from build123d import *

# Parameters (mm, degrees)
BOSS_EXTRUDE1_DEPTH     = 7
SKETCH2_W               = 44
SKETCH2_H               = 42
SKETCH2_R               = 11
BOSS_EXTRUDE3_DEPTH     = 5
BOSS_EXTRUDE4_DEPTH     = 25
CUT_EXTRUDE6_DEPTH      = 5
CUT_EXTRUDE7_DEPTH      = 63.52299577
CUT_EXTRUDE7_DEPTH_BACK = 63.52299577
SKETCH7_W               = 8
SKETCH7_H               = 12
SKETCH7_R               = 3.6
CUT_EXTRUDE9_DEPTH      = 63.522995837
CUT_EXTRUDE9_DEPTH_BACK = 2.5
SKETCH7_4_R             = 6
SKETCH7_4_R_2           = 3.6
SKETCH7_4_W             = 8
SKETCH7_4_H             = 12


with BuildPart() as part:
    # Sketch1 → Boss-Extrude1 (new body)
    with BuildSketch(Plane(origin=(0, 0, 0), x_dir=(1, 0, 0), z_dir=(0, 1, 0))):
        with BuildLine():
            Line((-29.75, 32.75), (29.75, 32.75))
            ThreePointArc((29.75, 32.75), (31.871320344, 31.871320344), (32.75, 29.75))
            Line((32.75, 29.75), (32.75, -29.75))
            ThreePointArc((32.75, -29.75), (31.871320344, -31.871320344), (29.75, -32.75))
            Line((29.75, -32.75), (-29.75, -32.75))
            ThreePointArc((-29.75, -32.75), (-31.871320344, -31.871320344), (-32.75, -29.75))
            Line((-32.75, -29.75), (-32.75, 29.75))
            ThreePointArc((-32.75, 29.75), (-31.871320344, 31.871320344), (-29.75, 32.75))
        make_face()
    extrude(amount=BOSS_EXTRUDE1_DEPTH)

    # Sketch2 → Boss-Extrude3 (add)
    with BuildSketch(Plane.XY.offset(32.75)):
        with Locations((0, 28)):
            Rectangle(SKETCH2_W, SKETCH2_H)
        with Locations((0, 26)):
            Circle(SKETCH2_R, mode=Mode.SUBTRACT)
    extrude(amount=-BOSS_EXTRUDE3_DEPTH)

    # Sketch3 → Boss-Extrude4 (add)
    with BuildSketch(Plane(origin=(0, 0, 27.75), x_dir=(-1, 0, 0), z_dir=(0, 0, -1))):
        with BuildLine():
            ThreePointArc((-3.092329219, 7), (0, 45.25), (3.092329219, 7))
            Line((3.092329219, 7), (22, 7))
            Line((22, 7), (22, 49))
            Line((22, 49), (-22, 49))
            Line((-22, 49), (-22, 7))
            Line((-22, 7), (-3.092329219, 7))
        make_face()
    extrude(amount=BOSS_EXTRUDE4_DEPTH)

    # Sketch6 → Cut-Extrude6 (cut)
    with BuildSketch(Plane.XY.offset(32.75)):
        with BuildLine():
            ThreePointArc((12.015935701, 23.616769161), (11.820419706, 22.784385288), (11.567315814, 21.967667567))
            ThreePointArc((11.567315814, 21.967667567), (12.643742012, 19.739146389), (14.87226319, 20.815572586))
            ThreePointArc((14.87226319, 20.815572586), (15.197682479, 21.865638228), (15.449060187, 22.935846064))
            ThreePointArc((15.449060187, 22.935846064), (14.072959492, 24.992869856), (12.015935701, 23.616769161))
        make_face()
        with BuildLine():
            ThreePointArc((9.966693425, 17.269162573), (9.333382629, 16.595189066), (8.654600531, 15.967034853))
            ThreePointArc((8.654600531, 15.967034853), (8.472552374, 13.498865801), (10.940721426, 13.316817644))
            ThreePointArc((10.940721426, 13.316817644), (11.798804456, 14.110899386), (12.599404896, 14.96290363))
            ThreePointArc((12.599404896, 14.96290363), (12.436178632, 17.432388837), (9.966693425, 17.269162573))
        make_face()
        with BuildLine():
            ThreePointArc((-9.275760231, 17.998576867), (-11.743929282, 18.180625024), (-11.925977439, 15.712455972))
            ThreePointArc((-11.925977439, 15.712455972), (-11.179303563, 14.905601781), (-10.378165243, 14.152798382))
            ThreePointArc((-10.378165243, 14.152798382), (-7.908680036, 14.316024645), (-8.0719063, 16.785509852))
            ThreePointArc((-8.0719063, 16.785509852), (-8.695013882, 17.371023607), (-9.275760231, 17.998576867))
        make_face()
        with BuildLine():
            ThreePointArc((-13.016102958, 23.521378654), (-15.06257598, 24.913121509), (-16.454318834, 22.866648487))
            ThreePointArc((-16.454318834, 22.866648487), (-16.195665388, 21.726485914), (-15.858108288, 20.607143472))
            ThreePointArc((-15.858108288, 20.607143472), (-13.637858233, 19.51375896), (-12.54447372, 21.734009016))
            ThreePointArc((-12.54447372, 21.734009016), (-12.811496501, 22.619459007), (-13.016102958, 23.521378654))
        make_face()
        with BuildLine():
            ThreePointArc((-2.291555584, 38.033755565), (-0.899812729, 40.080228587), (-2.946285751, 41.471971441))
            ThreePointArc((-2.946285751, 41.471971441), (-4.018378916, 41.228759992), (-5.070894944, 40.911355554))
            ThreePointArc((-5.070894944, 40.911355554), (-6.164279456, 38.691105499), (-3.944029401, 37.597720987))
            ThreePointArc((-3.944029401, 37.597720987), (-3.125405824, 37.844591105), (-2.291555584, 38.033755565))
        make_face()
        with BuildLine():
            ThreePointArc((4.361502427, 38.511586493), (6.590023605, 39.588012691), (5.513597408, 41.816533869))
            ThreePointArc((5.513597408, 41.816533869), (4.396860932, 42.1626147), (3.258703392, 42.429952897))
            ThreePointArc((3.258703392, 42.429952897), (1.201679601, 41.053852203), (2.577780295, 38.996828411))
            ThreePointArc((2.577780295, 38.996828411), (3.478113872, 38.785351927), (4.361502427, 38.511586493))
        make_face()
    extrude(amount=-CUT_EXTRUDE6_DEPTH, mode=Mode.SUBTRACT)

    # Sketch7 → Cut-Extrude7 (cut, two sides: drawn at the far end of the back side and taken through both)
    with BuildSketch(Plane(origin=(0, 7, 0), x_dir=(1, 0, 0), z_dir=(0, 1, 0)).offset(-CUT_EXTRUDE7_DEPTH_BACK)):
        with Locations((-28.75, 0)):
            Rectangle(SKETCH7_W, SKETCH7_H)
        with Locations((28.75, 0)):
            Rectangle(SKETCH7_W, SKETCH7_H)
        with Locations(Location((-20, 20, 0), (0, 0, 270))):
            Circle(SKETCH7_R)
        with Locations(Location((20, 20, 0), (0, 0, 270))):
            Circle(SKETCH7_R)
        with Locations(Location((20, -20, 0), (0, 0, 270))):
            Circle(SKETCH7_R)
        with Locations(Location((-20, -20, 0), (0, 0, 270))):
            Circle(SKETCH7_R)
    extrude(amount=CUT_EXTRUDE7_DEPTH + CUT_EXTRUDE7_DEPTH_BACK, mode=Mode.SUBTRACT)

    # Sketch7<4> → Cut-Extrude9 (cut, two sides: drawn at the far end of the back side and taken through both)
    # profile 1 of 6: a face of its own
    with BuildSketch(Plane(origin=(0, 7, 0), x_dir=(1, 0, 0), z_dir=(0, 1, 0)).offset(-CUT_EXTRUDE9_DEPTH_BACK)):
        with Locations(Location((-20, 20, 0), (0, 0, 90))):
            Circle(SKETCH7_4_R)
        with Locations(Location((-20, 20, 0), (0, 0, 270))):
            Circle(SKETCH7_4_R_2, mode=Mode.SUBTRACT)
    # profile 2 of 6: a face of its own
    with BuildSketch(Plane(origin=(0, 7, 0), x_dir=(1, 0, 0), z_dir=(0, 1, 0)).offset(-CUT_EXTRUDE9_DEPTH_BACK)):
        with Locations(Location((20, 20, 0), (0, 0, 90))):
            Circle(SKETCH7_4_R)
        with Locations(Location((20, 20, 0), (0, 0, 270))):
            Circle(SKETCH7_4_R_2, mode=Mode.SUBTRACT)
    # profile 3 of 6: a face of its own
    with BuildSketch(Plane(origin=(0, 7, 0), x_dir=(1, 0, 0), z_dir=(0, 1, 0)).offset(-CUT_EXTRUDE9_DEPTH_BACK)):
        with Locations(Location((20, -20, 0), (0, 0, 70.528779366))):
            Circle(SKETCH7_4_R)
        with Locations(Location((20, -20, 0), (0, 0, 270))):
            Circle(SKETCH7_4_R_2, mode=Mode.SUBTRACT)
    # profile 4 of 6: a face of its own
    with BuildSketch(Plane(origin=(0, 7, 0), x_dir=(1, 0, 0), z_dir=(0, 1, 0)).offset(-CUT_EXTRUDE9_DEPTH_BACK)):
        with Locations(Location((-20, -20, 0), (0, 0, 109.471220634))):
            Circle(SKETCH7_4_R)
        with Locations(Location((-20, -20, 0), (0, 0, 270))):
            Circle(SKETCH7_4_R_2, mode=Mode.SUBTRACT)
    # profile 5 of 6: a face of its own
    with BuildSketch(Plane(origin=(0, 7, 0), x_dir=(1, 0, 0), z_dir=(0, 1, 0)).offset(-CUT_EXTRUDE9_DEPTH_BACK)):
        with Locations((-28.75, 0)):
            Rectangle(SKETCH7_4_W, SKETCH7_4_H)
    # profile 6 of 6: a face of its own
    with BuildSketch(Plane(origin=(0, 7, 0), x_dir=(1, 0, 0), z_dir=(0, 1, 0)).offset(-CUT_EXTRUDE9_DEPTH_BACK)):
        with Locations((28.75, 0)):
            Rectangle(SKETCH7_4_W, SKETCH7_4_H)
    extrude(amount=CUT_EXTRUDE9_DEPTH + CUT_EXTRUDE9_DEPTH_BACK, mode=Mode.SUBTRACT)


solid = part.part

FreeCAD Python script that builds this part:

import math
import FreeCAD as App
import Part
import Sketcher
from FreeCAD import Vector
Q = App.Units.Quantity

doc = App.newDocument("Part")
params = doc.addObject("Spreadsheet::Sheet", "Params")
for row, (alias, value) in enumerate([
    ("sketch1_radius", "3 mm"),
    ("sketch1_width", "59.5 mm"),
    ("pad1_length", "7 mm"),
    ("sketch2_diameter", "22 mm"),
    ("sketch2_width", "44 mm"),
    ("sketch2_height", "42 mm"),
    ("pad2_length", "5 mm"),
    ("sketch3_width", "44 mm"),
    ("sketch3_height", "42 mm"),
    ("sketch3_radius", "19.25 mm"),
    ("pad3_length", "25 mm"),
    ("sketch4_radius", "12.25 mm"),
    ("sketch4_radius2", "1.75 mm"),
    ("sketch4_radius3", "13.25 mm"),
    ("pocket1_length", "5 mm"),
    ("sketch5_diameter", "7.2 mm"),
    ("sketch5_width", "8 mm"),
    ("sketch5_height", "12 mm"),
    ("sketch6_diameter", "12 mm"),
    ("sketch6_diameter2", "7.2 mm"),
    ("sketch6_width", "8 mm"),
    ("sketch6_height", "12 mm"),
    ("pocket3_length", "63.522996 mm"),
    ("pocket3_length2", "2.5 mm"),
], start=1):
    params.set(f"A{row}", alias)
    params.set(f"B{row}", "=" + value)
    params.setAlias(f"B{row}", alias)

body = doc.addObject("PartDesign::Body", "Body")

# Sketch on XZ plane
sketch1 = body.newObject("Sketcher::SketchObject", "Sketch")
sketch1.AttachmentSupport = (doc.getObject("XZ_Plane"), [""])
sketch1.MapMode = "FlatFace"
sketch1.addGeometry([
    Part.LineSegment(Vector(29.75, -32.75, 0), Vector(-29.75, -32.75, 0)),  # 0
    Part.ArcOfCircle(Part.Circle(Vector(-29.75, -29.75, 0), Vector(0, 0, 1), 3), math.radians(180), math.radians(270)),  # 1
    Part.LineSegment(Vector(-32.75, -29.75, 0), Vector(-32.75, 29.75, 0)),  # 2
    Part.ArcOfCircle(Part.Circle(Vector(-29.75, 29.75, 0), Vector(0, 0, 1), 3), math.radians(90), math.radians(180)),  # 3
    Part.LineSegment(Vector(-29.75, 32.75, 0), Vector(29.75, 32.75, 0)),  # 4
    Part.ArcOfCircle(Part.Circle(Vector(29.75, 29.75, 0), Vector(0, 0, 1), 3), math.radians(0), math.radians(90)),  # 5
    Part.LineSegment(Vector(32.75, 29.75, 0), Vector(32.75, -29.75, 0)),  # 6
    Part.ArcOfCircle(Part.Circle(Vector(29.75, -29.75, 0), Vector(0, 0, 1), 3), math.radians(-90), math.radians(0)),  # 7
], False)
sketch1.addConstraint([
    Sketcher.Constraint("Tangent", 0, 2, 1, 2),
    Sketcher.Constraint("Tangent", 1, 1, 2, 1),
    Sketcher.Constraint("Tangent", 2, 2, 3, 2),
    Sketcher.Constraint("Tangent", 3, 1, 4, 1),
    Sketcher.Constraint("Tangent", 4, 2, 5, 2),
    Sketcher.Constraint("Tangent", 5, 1, 6, 1),
    Sketcher.Constraint("Tangent", 6, 2, 7, 2),
    Sketcher.Constraint("Tangent", 7, 1, 0, 1),
    Sketcher.Constraint("Horizontal", 0),
    Sketcher.Constraint("Vertical", 2),
    Sketcher.Constraint("Horizontal", 4),
    Sketcher.Constraint("Vertical", 6),
    Sketcher.Constraint("Equal", 1, 3),
    Sketcher.Constraint("Equal", 3, 5),
    Sketcher.Constraint("Equal", 5, 7),
    Sketcher.Constraint("Symmetric", 1, 3, 5, 3, -1, 1),
    Sketcher.Constraint("Equal", 4, 2),
    Sketcher.Constraint("Radius", 1, Q("3 mm")),
    Sketcher.Constraint("DistanceX", 0, 2, 0, 1, Q("59.5 mm")),
])
sketch1.setExpression("Constraints[17]", "Params.sketch1_radius")
sketch1.setExpression("Constraints[18]", "Params.sketch1_width")
pad1 = body.newObject("PartDesign::Pad", "Pad")
pad1.Profile = sketch1
pad1.setExpression("Length", "Params.pad1_length")
pad1.Reversed = True

# Sketch on XY plane
sketch2 = body.newObject("Sketcher::SketchObject", "Sketch001")
sketch2.AttachmentSupport = (doc.getObject("XY_Plane"), [""])
sketch2.MapMode = "FlatFace"
sketch2.AttachmentOffset = App.Placement(Vector(0, 0, 32.75), App.Rotation())
sketch2.addGeometry([
    Part.LineSegment(Vector(-22, 49, 0), Vector(-22, 7, 0)),  # 0
    Part.LineSegment(Vector(-22, 7, 0), Vector(22, 7, 0)),  # 1
    Part.LineSegment(Vector(22, 7, 0), Vector(22, 49, 0)),  # 2
    Part.LineSegment(Vector(22, 49, 0), Vector(-22, 49, 0)),  # 3
    Part.Circle(Vector(0, 26, 0), Vector(0, 0, 1), 11),  # 4
], False)
sketch2.addConstraint([
    Sketcher.Constraint("Coincident", 0, 2, 1, 1),
    Sketcher.Constraint("Coincident", 1, 2, 2, 1),
    Sketcher.Constraint("Coincident", 2, 2, 3, 1),
    Sketcher.Constraint("Coincident", 3, 2, 0, 1),
    Sketcher.Constraint("Vertical", 0),
    Sketcher.Constraint("Horizontal", 1),
    Sketcher.Constraint("Vertical", 2),
    Sketcher.Constraint("Horizontal", 3),
    Sketcher.Constraint("PointOnObject", 4, 3, -2),
    Sketcher.Constraint("Diameter", 4, Q("22 mm")),
    Sketcher.Constraint("DistanceX", 1, 1, 1, 2, Q("44 mm")),
    Sketcher.Constraint("DistanceY", 0, 2, 0, 1, Q("42 mm")),
    Sketcher.Constraint("DistanceY", -1, 1, 4, 3, Q("26 mm")),
    Sketcher.Constraint("DistanceX", 0, 2, -1, 1, Q("22 mm")),
    Sketcher.Constraint("DistanceY", -1, 1, 0, 2, Q("7 mm")),
])
sketch2.setExpression("Constraints[9]", "Params.sketch2_diameter")
sketch2.setExpression("Constraints[10]", "Params.sketch2_width")
sketch2.setExpression("Constraints[11]", "Params.sketch2_height")
pad2 = body.newObject("PartDesign::Pad", "Pad001")
pad2.Profile = sketch2
pad2.setExpression("Length", "Params.pad2_length")
pad2.Reversed = True

# Sketch on XY plane
sketch3 = body.newObject("Sketcher::SketchObject", "Sketch002")
sketch3.AttachmentSupport = (doc.getObject("XY_Plane"), [""])
sketch3.MapMode = "FlatFace"
sketch3.AttachmentOffset = App.Placement(Vector(0, 0, 27.75), App.Rotation())
sketch3.addGeometry([
    Part.ArcOfCircle(Part.Circle(Vector(0, 26, 0), Vector(0, 0, 1), 19.25), math.radians(-80.755926), math.radians(260.755926)),  # 0
    Part.LineSegment(Vector(-3.092329, 7, 0), Vector(-22, 7, 0)),  # 1
    Part.LineSegment(Vector(-22, 7, 0), Vector(-22, 49, 0)),  # 2
    Part.LineSegment(Vector(-22, 49, 0), Vector(22, 49, 0)),  # 3
    Part.LineSegment(Vector(22, 49, 0), Vector(22, 7, 0)),  # 4
    Part.LineSegment(Vector(22, 7, 0), Vector(3.092329, 7, 0)),  # 5
], False)
sketch3.addConstraint([
    Sketcher.Constraint("Coincident", 0, 2, 1, 1),
    Sketcher.Constraint("Coincident", 1, 2, 2, 1),
    Sketcher.Constraint("Coincident", 2, 2, 3, 1),
    Sketcher.Constraint("Coincident", 3, 2, 4, 1),
    Sketcher.Constraint("Coincident", 4, 2, 5, 1),
    Sketcher.Constraint("Coincident", 5, 2, 0, 1),
    Sketcher.Constraint("Horizontal", 1),
    Sketcher.Constraint("Vertical", 2),
    Sketcher.Constraint("Horizontal", 3),
    Sketcher.Constraint("Vertical", 4),
    Sketcher.Constraint("Horizontal", 5),
    Sketcher.Constraint("Symmetric", 1, 2, 4, 2, -2),
    Sketcher.Constraint("PointOnObject", 0, 3, -2),
    Sketcher.Constraint("DistanceX", 3, 1, 3, 2, Q("44 mm")),
    Sketcher.Constraint("DistanceY", 2, 1, 2, 2, Q("42 mm")),
    Sketcher.Constraint("Radius", 0, Q("19.25 mm")),
    Sketcher.Constraint("DistanceY", -1, 1, 0, 3, Q("26 mm")),
    Sketcher.Constraint("DistanceY", -1, 1, 0, 2, Q("7 mm")),
])
sketch3.setExpression("Constraints[13]", "Params.sketch3_width")
sketch3.setExpression("Constraints[14]", "Params.sketch3_height")
sketch3.setExpression("Constraints[15]", "Params.sketch3_radius")
pad3 = body.newObject("PartDesign::Pad", "Pad002")
pad3.Profile = sketch3
pad3.setExpression("Length", "Params.pad3_length")
pad3.Reversed = True

# Sketch on XY plane
sketch4 = body.newObject("Sketcher::SketchObject", "Sketch003")
sketch4.AttachmentSupport = (doc.getObject("XY_Plane"), [""])
sketch4.MapMode = "FlatFace"
sketch4.AttachmentOffset = App.Placement(Vector(0, 0, 32.75), App.Rotation())
sketch4.addGeometry([
    Part.ArcOfCircle(Part.Circle(Vector(0, 26, 0), Vector(0, 0, 1), 12.25), math.radians(-19.218405), math.radians(-11.218405)),  # 0
    Part.ArcOfCircle(Part.Circle(Vector(13.21979, 21.39162, 0), Vector(0, 0, 1), 1.75), math.radians(160.781595), math.radians(340.781595)),  # 1
    Part.ArcOfCircle(Part.Circle(Vector(0, 26, 0), Vector(0, 0, 1), 15.75), math.radians(-19.218405), math.radians(-11.218405)),  # 2
    Part.ArcOfCircle(Part.Circle(Vector(13.732498, 23.276308, 0), Vector(0, 0, 1), 1.75), math.radians(-11.218405), math.radians(168.781595)),  # 3
    Part.ArcOfCircle(Part.Circle(Vector(0, 26, 0), Vector(0, 0, 1), 13.25), math.radians(-49.218405), math.radians(-41.218405)),  # 4
    Part.ArcOfCircle(Part.Circle(Vector(9.797661, 14.641926, 0), Vector(0, 0, 1), 1.75), math.radians(130.781595), math.radians(310.781595)),  # 5
    Part.ArcOfCircle(Part.Circle(Vector(0, 26, 0), Vector(0, 0, 1), 16.75), math.radians(-49.218405), math.radians(-41.218405)),  # 6
    Part.ArcOfCircle(Part.Circle(Vector(11.283049, 16.116033, 0), Vector(0, 0, 1), 1.75), math.radians(-41.218405), math.radians(138.781595)),  # 7
    Part.ArcOfCircle(Part.Circle(Vector(-10.600869, 16.855516, 0), Vector(0, 0, 1), 1.75), math.radians(40.781595), math.radians(220.781595)),  # 8
    Part.ArcOfCircle(Part.Circle(Vector(0, 26, 0), Vector(0, 0, 1), 15.75), math.radians(-139.218405), math.radians(-131.218405)),  # 9
    Part.ArcOfCircle(Part.Circle(Vector(-9.225036, 15.469154, 0), Vector(0, 0, 1), 1.75), math.radians(-131.218405), math.radians(48.781595)),  # 10
    Part.ArcOfCircle(Part.Circle(Vector(0, 26, 0), Vector(0, 0, 1), 12.25), math.radians(-139.218405), math.radians(-131.218405)),  # 11
    Part.ArcOfCircle(Part.Circle(Vector(-14.735211, 23.194014, 0), Vector(0, 0, 1), 1.75), math.radians(10.781595), math.radians(190.781595)),  # 12
    Part.ArcOfCircle(Part.Circle(Vector(0, 26, 0), Vector(0, 0, 1), 16.75), math.radians(-169.218405), math.radians(-161.218405)),  # 13
    Part.ArcOfCircle(Part.Circle(Vector(-14.201291, 21.170576, 0), Vector(0, 0, 1), 1.75), math.radians(-161.218405), math.radians(18.781595)),  # 14
    Part.ArcOfCircle(Part.Circle(Vector(0, 26, 0), Vector(0, 0, 1), 13.25), math.radians(-169.218405), math.radians(-161.218405)),  # 15
    Part.ArcOfCircle(Part.Circle(Vector(-2.618921, 39.752864, 0), Vector(0, 0, 1), 1.75), math.radians(-79.218405), math.radians(100.781595)),  # 16
    Part.ArcOfCircle(Part.Circle(Vector(0, 26, 0), Vector(0, 0, 1), 15.75), math.radians(100.781595), math.radians(108.781595)),  # 17
    Part.ArcOfCircle(Part.Circle(Vector(-4.507462, 39.254538, 0), Vector(0, 0, 1), 1.75), math.radians(108.781595), math.radians(288.781595)),  # 18
    Part.ArcOfCircle(Part.Circle(Vector(0, 26, 0), Vector(0, 0, 1), 12.25), math.radians(100.781595), math.radians(108.781595)),  # 19
    Part.ArcOfCircle(Part.Circle(Vector(4.93755, 40.16406, 0), Vector(0, 0, 1), 1.75), math.radians(-109.218405), math.radians(70.781595)),  # 20
    Part.ArcOfCircle(Part.Circle(Vector(0, 26, 0), Vector(0, 0, 1), 16.75), math.radians(70.781595), math.radians(78.781595)),  # 21
    Part.ArcOfCircle(Part.Circle(Vector(2.918242, 40.713391, 0), Vector(0, 0, 1), 1.75), math.radians(78.781595), math.radians(258.781595)),  # 22
    Part.ArcOfCircle(Part.Circle(Vector(0, 26, 0), Vector(0, 0, 1), 13.25), math.radians(70.781595), math.radians(78.781595)),  # 23
], False)
sketch4.addConstraint([
    Sketcher.Constraint("Tangent", 0, 1, 1, 1),
    Sketcher.Constraint("Tangent", 1, 2, 2, 1),
    Sketcher.Constraint("Tangent", 2, 2, 3, 1),
    Sketcher.Constraint("Tangent", 3, 2, 0, 2),
    Sketcher.Constraint("Tangent", 4, 1, 5, 1),
    Sketcher.Constraint("Tangent", 5, 2, 6, 1),
    Sketcher.Constraint("Tangent", 6, 2, 7, 1),
    Sketcher.Constraint("Tangent", 7, 2, 4, 2),
    Sketcher.Constraint("Tangent", 8, 2, 9, 1),
    Sketcher.Constraint("Tangent", 9, 2, 10, 1),
    Sketcher.Constraint("Tangent", 10, 2, 11, 2),
    Sketcher.Constraint("Tangent", 11, 1, 8, 1),
    Sketcher.Constraint("Tangent", 12, 2, 13, 1),
    Sketcher.Constraint("Tangent", 13, 2, 14, 1),
    Sketcher.Constraint("Tangent", 14, 2, 15, 2),
    Sketcher.Constraint("Tangent", 15, 1, 12, 1),
    Sketcher.Constraint("Tangent", 16, 2, 17, 1),
    Sketcher.Constraint("Tangent", 17, 2, 18, 1),
    Sketcher.Constraint("Tangent", 18, 2, 19, 2),
    Sketcher.Constraint("Tangent", 19, 1, 16, 1),
    Sketcher.Constraint("Tangent", 20, 2, 21, 1),
    Sketcher.Constraint("Tangent", 21, 2, 22, 1),
    Sketcher.Constraint("Tangent", 22, 2, 23, 2),
    Sketcher.Constraint("Tangent", 23, 1, 20, 1),
    Sketcher.Constraint("Coincident", 2, 3, 0, 3),
    Sketcher.Constraint("Coincident", 4, 3, 0, 3),
    Sketcher.Constraint("Coincident", 6, 3, 0, 3),
    Sketcher.Constraint("Coincident", 9, 3, 0, 3),
    Sketcher.Constraint("Coincident", 11, 3, 0, 3),
    Sketcher.Constraint("Coincident", 13, 3, 0, 3),
    Sketcher.Constraint("Coincident", 15, 3, 0, 3),
    Sketcher.Constraint("Coincident", 17, 3, 0, 3),
    Sketcher.Constraint("Coincident", 19, 3, 0, 3),
    Sketcher.Constraint("Coincident", 21, 3, 0, 3),
    Sketcher.Constraint("Coincident", 23, 3, 0, 3),
    Sketcher.Constraint("Equal", 3, 5),
    Sketcher.Constraint("Equal", 7, 8),
    Sketcher.Constraint("Equal", 2, 9),
    Sketcher.Constraint("Equal", 10, 12),
    Sketcher.Constraint("Equal", 6, 13),
    Sketcher.Constraint("Equal", 14, 16),
    Sketcher.Constraint("Equal", 9, 17),
    Sketcher.Constraint("Equal", 18, 20),
    Sketcher.Constraint("Equal", 13, 21),
    Sketcher.Constraint("PointOnObject", 0, 3, -2),
    Sketcher.Constraint("Radius", 0, Q("12.25 mm")),
    Sketcher.Constraint("Radius", 1, Q("1.75 mm")),
    Sketcher.Constraint("Radius", 4, Q("13.25 mm")),
    Sketcher.Constraint("DistanceY", -1, 1, 0, 3, Q("26 mm")),
    Sketcher.Constraint("DistanceY", 4, 1, 7, 3, Q("0.148998 mm")),
    Sketcher.Constraint("DistanceX", -1, 1, 4, 1, Q("8.654601 mm")),
    Sketcher.Constraint("DistanceY", -1, 1, 9, 2, Q("14.152798 mm")),
    Sketcher.Constraint("DistanceX", 2, 3, 3, 3, Q("13.732498 mm")),
    Sketcher.Constraint("DistanceY", 0, 1, 3, 2, Q("1.649102 mm")),
    Sketcher.Constraint("DistanceY", 10, 3, 8, 2, Q("0.243302 mm")),
    Sketcher.Constraint("DistanceY", 19, 1, 17, 2, Q("2.8776 mm")),
    Sketcher.Constraint("DistanceX", 21, 2, 23, 1, Q("1.102799 mm")),
    Sketcher.Constraint("DistanceX", 12, 3, -1, 1, Q("14.735211 mm")),
    Sketcher.Constraint("DistanceX", 14, 3, -1, 1, Q("14.201291 mm")),
    Sketcher.Constraint("DistanceX", 16, 3, -1, 1, Q("2.618921 mm")),
    Sketcher.Constraint("DistanceX", -1, 1, 20, 3, Q("4.93755 mm")),
])
sketch4.setExpression("Constraints[45]", "Params.sketch4_radius")
sketch4.setExpression("Constraints[46]", "Params.sketch4_radius2")
sketch4.setExpression("Constraints[47]", "Params.sketch4_radius3")
pocket1 = body.newObject("PartDesign::Pocket", "Pocket")
pocket1.Profile = sketch4
pocket1.setExpression("Length", "Params.pocket1_length")

# Sketch on XZ plane
sketch5 = body.newObject("Sketcher::SketchObject", "Sketch004")
sketch5.AttachmentSupport = (doc.getObject("XZ_Plane"), [""])
sketch5.MapMode = "FlatFace"
sketch5.AttachmentOffset = App.Placement(Vector(0, 0, -7), App.Rotation())
sketch5.addGeometry([
    Part.LineSegment(Vector(-32.75, -6, 0), Vector(-32.75, 6, 0)),  # 0
    Part.LineSegment(Vector(-32.75, 6, 0), Vector(-24.75, 6, 0)),  # 1
    Part.LineSegment(Vector(-24.75, 6, 0), Vector(-24.75, -6, 0)),  # 2
    Part.LineSegment(Vector(-24.75, -6, 0), Vector(-32.75, -6, 0)),  # 3
    Part.LineSegment(Vector(24.75, -6, 0), Vector(24.75, 6, 0)),  # 4
    Part.LineSegment(Vector(24.75, 6, 0), Vector(32.75, 6, 0)),  # 5
    Part.LineSegment(Vector(32.75, 6, 0), Vector(32.75, -6, 0)),  # 6
    Part.LineSegment(Vector(32.75, -6, 0), Vector(24.75, -6, 0)),  # 7
    Part.Circle(Vector(-20, -20, 0), Vector(0, 0, 1), 3.6),  # 8
    Part.Circle(Vector(20, -20, 0), Vector(0, 0, 1), 3.6),  # 9
    Part.Circle(Vector(20, 20, 0), Vector(0, 0, 1), 3.6),  # 10
    Part.Circle(Vector(-20, 20, 0), Vector(0, 0, 1), 3.6),  # 11
], False)
sketch5.addConstraint([
    Sketcher.Constraint("Coincident", 0, 2, 1, 1),
    Sketcher.Constraint("Coincident", 1, 2, 2, 1),
    Sketcher.Constraint("Coincident", 2, 2, 3, 1),
    Sketcher.Constraint("Coincident", 3, 2, 0, 1),
    Sketcher.Constraint("Coincident", 4, 2, 5, 1),
    Sketcher.Constraint("Coincident", 5, 2, 6, 1),
    Sketcher.Constraint("Coincident", 6, 2, 7, 1),
    Sketcher.Constraint("Coincident", 7, 2, 4, 1),
    Sketcher.Constraint("Vertical", 0),
    Sketcher.Constraint("Horizontal", 1),
    Sketcher.Constraint("Vertical", 2),
    Sketcher.Constraint("Horizontal", 3),
    Sketcher.Constraint("Vertical", 4),
    Sketcher.Constraint("Horizontal", 5),
    Sketcher.Constraint("Vertical", 6),
    Sketcher.Constraint("Horizontal", 7),
    Sketcher.Constraint("Equal", 8, 9),
    Sketcher.Constraint("Equal", 9, 10),
    Sketcher.Constraint("Equal", 10, 11),
    Sketcher.Constraint("Symmetric", 8, 3, 10, 3, -1, 1),
    Sketcher.Constraint("Symmetric", 9, 3, 11, 3, -1, 1),
    Sketcher.Constraint("Symmetric", 2, 2, 4, 2, -1, 1),
    Sketcher.Constraint("Symmetric", 0, 2, 6, 2, -1, 1),
    Sketcher.Constraint("Symmetric", 8, 3, 9, 3, -2),
    Sketcher.Constraint("Horizontal", 1, 2, 4, 2),
    Sketcher.Constraint("Diameter", 8, Q("7.2 mm")),
    Sketcher.Constraint("DistanceX", 1, 1, 1, 2, Q("8 mm")),
    Sketcher.Constraint("DistanceY", 0, 1, 0, 2, Q("12 mm")),
    Sketcher.Constraint("DistanceX", 8, 3, -1, 1, Q("20 mm")),
    Sketcher.Constraint("DistanceY", 8, 3, -1, 1, Q("20 mm")),
    Sketcher.Constraint("DistanceX", 1, 2, 4, 2, Q("49.5 mm")),
])
sketch5.setExpression("Constraints[25]", "Params.sketch5_diameter")
sketch5.setExpression("Constraints[26]", "Params.sketch5_width")
sketch5.setExpression("Constraints[27]", "Params.sketch5_height")
pocket2 = body.newObject("PartDesign::Pocket", "Pocket001")
pocket2.Profile = sketch5
pocket2.Type = "ThroughAll"
pocket2.Midplane = True

# Sketch on XZ plane
sketch6 = body.newObject("Sketcher::SketchObject", "Sketch005")
sketch6.AttachmentSupport = (doc.getObject("XZ_Plane"), [""])
sketch6.MapMode = "FlatFace"
sketch6.AttachmentOffset = App.Placement(Vector(0, 0, -7), App.Rotation())
sketch6.addGeometry([
    Part.Circle(Vector(-20, -20, 0), Vector(0, 0, 1), 6),  # 0
    Part.Circle(Vector(-20, -20, 0), Vector(0, 0, 1), 3.6),  # 1
    Part.Circle(Vector(20, -20, 0), Vector(0, 0, 1), 6),  # 2
    Part.Circle(Vector(20, -20, 0), Vector(0, 0, 1), 3.6),  # 3
    Part.Circle(Vector(20, 20, 0), Vector(0, 0, 1), 6),  # 4
    Part.Circle(Vector(20, 20, 0), Vector(0, 0, 1), 3.6),  # 5
    Part.Circle(Vector(-20, 20, 0), Vector(0, 0, 1), 6),  # 6
    Part.Circle(Vector(-20, 20, 0), Vector(0, 0, 1), 3.6),  # 7
    Part.LineSegment(Vector(-32.75, -6, 0), Vector(-32.75, 6, 0)),  # 8
    Part.LineSegment(Vector(-32.75, 6, 0), Vector(-24.75, 6, 0)),  # 9
    Part.LineSegment(Vector(-24.75, 6, 0), Vector(-24.75, -6, 0)),  # 10
    Part.LineSegment(Vector(-24.75, -6, 0), Vector(-32.75, -6, 0)),  # 11
    Part.LineSegment(Vector(24.75, -6, 0), Vector(24.75, 6, 0)),  # 12
    Part.LineSegment(Vector(24.75, 6, 0), Vector(32.75, 6, 0)),  # 13
    Part.LineSegment(Vector(32.75, 6, 0), Vector(32.75, -6, 0)),  # 14
    Part.LineSegment(Vector(32.75, -6, 0), Vector(24.75, -6, 0)),  # 15
], False)
sketch6.addConstraint([
    Sketcher.Constraint("Coincident", 8, 2, 9, 1),
    Sketcher.Constraint("Coincident", 9, 2, 10, 1),
    Sketcher.Constraint("Coincident", 10, 2, 11, 1),
    Sketcher.Constraint("Coincident", 11, 2, 8, 1),
    Sketcher.Constraint("Coincident", 12, 2, 13, 1),
    Sketcher.Constraint("Coincident", 13, 2, 14, 1),
    Sketcher.Constraint("Coincident", 14, 2, 15, 1),
    Sketcher.Constraint("Coincident", 15, 2, 12, 1),
    Sketcher.Constraint("Vertical", 8),
    Sketcher.Constraint("Horizontal", 9),
    Sketcher.Constraint("Vertical", 10),
    Sketcher.Constraint("Horizontal", 11),
    Sketcher.Constraint("Vertical", 12),
    Sketcher.Constraint("Horizontal", 13),
    Sketcher.Constraint("Vertical", 14),
    Sketcher.Constraint("Horizontal", 15),
    Sketcher.Constraint("Coincident", 1, 3, 0, 3),
    Sketcher.Constraint("Coincident", 3, 3, 2, 3),
    Sketcher.Constraint("Coincident", 5, 3, 4, 3),
    Sketcher.Constraint("Coincident", 7, 3, 6, 3),
    Sketcher.Constraint("Equal", 0, 2),
    Sketcher.Constraint("Equal", 1, 3),
    Sketcher.Constraint("Equal", 2, 4),
    Sketcher.Constraint("Equal", 3, 5),
    Sketcher.Constraint("Equal", 4, 6),
    Sketcher.Constraint("Equal", 5, 7),
    Sketcher.Constraint("Symmetric", 0, 3, 4, 3, -1, 1),
    Sketcher.Constraint("Symmetric", 2, 3, 6, 3, -1, 1),
    Sketcher.Constraint("Symmetric", 10, 2, 12, 2, -1, 1),
    Sketcher.Constraint("Symmetric", 8, 2, 14, 2, -1, 1),
    Sketcher.Constraint("Symmetric", 0, 3, 2, 3, -2),
    Sketcher.Constraint("Horizontal", 9, 2, 12, 2),
    Sketcher.Constraint("Diameter", 0, Q("12 mm")),
    Sketcher.Constraint("Diameter", 1, Q("7.2 mm")),
    Sketcher.Constraint("DistanceX", 9, 1, 9, 2, Q("8 mm")),
    Sketcher.Constraint("DistanceY", 8, 1, 8, 2, Q("12 mm")),
    Sketcher.Constraint("DistanceX", 0, 3, -1, 1, Q("20 mm")),
    Sketcher.Constraint("DistanceY", 0, 3, -1, 1, Q("20 mm")),
    Sketcher.Constraint("DistanceX", 8, 2, -1, 1, Q("32.75 mm")),
])
sketch6.setExpression("Constraints[32]", "Params.sketch6_diameter")
sketch6.setExpression("Constraints[33]", "Params.sketch6_diameter2")
sketch6.setExpression("Constraints[34]", "Params.sketch6_width")
sketch6.setExpression("Constraints[35]", "Params.sketch6_height")
pocket3 = body.newObject("PartDesign::Pocket", "Pocket002")
pocket3.Profile = sketch6
pocket3.Type = "TwoLengths"
pocket3.setExpression("Length", "Params.pocket3_length")
pocket3.setExpression("Length2", "Params.pocket3_length2")

doc.recompute()
